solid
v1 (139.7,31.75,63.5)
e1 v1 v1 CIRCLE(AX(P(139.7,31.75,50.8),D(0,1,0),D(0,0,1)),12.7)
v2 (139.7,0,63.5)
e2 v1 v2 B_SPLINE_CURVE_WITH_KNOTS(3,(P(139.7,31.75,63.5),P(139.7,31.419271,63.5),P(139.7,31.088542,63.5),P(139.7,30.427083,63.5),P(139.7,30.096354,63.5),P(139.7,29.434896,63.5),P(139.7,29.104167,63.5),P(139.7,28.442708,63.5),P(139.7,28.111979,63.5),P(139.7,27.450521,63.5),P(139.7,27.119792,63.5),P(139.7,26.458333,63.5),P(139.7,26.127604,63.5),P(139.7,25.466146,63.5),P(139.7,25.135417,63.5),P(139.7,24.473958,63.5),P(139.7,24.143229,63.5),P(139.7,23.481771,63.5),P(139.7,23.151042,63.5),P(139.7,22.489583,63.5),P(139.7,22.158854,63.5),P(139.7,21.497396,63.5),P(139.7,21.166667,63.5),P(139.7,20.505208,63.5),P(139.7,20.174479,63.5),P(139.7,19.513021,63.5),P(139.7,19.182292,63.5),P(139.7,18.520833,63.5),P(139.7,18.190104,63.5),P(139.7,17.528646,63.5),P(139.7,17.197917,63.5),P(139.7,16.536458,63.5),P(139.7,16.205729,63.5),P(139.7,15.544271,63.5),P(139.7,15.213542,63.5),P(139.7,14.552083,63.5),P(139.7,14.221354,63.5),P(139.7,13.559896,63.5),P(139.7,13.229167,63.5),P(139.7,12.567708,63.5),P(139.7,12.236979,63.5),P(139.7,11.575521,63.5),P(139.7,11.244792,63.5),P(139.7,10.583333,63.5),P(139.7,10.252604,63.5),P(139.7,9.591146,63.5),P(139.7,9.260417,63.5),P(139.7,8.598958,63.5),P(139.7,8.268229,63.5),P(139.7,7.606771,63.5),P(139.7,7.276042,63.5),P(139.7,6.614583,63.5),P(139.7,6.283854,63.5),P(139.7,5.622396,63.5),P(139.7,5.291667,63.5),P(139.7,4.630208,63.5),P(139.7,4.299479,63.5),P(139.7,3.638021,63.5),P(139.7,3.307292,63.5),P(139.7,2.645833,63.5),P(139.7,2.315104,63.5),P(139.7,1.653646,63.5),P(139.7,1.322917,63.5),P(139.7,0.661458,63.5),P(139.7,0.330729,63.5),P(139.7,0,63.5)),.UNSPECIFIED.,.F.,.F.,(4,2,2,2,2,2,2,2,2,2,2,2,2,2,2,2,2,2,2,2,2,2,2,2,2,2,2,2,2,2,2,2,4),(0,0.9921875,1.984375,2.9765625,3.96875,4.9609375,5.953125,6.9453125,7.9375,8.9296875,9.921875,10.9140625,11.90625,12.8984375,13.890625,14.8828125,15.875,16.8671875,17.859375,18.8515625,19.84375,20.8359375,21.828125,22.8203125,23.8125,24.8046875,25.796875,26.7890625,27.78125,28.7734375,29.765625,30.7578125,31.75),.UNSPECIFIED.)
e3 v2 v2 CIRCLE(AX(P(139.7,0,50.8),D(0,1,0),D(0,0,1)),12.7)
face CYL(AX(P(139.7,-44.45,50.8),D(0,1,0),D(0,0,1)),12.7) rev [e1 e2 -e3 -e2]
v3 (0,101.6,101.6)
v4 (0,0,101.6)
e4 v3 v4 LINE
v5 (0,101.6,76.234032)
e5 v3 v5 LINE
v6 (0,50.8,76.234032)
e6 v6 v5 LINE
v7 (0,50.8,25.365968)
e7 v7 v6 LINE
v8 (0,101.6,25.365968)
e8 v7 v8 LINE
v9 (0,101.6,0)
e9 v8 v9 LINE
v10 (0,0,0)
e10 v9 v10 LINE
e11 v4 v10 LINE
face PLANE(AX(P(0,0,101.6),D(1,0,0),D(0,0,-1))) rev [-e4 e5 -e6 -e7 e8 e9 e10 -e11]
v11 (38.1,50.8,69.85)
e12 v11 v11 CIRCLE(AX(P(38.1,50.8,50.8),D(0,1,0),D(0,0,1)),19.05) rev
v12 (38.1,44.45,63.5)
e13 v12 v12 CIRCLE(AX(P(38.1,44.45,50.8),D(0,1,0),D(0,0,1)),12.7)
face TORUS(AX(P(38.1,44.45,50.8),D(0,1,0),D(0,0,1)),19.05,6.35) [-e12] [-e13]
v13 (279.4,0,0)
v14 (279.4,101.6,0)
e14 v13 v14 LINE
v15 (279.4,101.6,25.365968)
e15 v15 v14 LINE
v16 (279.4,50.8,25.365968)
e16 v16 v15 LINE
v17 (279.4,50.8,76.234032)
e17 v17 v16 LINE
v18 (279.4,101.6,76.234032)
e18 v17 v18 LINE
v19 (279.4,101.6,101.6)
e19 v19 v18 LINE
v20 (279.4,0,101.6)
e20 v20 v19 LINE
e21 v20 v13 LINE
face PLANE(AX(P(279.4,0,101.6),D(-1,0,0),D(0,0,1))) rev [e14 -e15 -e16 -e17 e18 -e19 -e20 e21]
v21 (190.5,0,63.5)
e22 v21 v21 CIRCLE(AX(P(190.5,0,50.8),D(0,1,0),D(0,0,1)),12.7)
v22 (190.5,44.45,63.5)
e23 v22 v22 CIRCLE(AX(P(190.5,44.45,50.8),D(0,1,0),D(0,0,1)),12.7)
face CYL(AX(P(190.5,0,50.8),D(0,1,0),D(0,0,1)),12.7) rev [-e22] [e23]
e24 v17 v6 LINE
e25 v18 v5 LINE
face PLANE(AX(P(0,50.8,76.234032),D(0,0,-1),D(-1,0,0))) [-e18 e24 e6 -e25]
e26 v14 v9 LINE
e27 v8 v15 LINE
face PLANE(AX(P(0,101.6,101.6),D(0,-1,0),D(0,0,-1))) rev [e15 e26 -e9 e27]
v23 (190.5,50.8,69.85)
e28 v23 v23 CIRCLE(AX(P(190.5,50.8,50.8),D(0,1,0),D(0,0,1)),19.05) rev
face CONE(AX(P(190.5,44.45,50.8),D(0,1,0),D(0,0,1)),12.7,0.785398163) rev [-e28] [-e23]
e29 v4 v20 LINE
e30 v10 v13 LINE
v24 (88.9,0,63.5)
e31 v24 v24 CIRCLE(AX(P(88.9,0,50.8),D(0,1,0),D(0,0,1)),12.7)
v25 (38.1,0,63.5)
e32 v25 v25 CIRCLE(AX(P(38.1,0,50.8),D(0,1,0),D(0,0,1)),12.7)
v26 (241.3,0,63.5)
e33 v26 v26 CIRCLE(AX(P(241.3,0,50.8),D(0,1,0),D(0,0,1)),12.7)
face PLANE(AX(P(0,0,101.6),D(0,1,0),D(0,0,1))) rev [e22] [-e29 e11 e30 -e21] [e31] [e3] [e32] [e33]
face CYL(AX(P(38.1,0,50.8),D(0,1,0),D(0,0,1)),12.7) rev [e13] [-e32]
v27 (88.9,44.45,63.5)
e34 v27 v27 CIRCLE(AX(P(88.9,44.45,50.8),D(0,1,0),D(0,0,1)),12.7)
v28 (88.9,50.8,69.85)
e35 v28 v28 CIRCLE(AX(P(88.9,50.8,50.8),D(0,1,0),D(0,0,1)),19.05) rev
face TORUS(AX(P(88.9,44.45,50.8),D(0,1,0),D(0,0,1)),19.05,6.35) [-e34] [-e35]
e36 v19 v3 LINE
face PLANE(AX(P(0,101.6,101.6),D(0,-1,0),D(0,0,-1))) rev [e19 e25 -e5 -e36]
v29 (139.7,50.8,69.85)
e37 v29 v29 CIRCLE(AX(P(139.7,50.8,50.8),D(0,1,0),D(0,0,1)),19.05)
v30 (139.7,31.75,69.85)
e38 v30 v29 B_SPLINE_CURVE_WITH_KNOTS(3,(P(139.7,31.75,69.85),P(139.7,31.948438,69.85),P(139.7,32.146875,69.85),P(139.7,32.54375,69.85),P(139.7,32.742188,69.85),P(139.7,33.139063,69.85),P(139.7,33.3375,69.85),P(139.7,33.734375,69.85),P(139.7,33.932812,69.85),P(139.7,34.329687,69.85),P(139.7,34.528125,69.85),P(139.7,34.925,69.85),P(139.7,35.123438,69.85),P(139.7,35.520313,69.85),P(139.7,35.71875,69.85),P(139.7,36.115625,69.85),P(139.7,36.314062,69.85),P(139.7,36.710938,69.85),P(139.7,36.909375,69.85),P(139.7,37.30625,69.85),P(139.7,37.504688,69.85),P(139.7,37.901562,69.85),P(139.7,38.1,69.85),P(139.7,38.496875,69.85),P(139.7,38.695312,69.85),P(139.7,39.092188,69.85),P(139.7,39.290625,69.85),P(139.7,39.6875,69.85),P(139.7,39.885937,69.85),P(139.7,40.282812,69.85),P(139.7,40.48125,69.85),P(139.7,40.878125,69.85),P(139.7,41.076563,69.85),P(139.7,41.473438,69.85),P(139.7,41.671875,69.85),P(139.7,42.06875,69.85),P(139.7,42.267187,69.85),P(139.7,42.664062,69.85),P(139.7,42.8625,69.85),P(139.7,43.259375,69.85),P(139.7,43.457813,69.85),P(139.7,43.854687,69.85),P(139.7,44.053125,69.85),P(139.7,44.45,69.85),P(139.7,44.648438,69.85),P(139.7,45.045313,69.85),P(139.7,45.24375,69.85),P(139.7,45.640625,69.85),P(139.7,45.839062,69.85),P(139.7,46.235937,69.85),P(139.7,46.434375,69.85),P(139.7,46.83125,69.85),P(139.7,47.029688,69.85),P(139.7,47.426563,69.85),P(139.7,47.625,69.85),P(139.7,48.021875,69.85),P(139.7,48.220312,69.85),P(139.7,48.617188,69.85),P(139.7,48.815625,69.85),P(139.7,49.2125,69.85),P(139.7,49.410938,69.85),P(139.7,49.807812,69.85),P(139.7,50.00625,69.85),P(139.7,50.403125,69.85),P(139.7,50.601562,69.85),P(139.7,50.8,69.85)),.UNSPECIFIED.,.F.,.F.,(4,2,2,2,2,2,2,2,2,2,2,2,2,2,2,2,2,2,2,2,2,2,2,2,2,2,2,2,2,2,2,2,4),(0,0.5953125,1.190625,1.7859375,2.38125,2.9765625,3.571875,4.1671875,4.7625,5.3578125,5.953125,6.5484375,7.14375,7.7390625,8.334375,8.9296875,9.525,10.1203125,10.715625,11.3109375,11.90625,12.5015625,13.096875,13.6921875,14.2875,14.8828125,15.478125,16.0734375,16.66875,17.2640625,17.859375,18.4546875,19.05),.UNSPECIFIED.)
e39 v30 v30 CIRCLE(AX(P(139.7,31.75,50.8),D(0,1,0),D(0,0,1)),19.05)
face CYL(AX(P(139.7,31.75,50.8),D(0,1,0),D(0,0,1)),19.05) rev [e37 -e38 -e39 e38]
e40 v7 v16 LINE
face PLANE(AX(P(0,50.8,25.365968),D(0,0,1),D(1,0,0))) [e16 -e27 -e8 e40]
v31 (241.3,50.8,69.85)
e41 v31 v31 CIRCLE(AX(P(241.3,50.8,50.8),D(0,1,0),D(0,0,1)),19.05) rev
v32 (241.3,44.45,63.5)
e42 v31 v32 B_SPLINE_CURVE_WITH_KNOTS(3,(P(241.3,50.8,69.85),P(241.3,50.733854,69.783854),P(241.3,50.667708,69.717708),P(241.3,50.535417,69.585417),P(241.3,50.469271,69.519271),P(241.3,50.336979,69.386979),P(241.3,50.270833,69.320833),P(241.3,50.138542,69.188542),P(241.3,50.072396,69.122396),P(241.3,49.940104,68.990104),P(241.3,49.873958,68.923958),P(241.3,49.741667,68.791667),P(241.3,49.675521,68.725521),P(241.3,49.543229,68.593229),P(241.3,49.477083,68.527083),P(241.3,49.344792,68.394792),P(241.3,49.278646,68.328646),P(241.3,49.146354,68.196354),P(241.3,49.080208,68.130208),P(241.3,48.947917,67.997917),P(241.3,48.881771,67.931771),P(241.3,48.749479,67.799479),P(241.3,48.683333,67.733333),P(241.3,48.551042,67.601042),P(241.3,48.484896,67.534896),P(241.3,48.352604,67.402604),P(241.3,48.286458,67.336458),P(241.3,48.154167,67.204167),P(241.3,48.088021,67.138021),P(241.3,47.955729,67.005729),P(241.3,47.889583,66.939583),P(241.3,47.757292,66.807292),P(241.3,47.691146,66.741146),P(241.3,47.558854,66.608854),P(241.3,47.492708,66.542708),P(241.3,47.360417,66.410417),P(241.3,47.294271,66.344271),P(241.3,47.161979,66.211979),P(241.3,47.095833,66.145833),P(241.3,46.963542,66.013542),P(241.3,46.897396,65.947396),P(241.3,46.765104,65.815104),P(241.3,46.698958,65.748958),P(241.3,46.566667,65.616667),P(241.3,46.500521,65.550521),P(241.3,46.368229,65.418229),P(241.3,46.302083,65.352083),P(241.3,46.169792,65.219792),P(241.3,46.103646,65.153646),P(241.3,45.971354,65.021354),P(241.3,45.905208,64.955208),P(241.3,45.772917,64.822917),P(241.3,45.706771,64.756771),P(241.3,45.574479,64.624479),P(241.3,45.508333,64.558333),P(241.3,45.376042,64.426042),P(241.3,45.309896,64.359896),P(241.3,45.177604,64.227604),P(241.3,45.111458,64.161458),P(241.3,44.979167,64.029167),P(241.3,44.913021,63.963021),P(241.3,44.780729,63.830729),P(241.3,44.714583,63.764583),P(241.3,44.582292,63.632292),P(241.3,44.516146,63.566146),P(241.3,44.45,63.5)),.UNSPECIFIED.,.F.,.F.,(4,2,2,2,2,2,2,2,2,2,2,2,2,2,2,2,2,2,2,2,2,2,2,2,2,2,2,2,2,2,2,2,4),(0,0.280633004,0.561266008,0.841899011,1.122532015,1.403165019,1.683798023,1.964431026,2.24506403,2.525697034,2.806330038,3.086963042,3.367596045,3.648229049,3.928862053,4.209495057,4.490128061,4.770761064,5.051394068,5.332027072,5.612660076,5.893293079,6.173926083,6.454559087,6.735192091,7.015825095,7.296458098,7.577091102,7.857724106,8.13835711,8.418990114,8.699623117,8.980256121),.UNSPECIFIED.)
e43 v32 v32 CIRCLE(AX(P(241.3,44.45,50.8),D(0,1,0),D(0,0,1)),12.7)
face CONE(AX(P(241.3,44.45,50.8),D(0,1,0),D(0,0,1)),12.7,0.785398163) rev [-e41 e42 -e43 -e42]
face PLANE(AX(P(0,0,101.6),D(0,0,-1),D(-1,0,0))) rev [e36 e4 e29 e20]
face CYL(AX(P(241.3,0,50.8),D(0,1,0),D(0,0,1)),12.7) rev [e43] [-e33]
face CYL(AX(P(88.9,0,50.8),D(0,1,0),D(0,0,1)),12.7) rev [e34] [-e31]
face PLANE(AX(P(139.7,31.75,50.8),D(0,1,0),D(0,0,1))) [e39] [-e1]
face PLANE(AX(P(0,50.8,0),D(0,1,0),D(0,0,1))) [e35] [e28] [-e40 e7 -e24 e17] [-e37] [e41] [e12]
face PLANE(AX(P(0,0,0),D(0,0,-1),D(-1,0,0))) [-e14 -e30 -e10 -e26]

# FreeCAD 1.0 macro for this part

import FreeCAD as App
import Part
import Sketcher
Q = App.Units.Quantity


def edges_at(feature, points):
    """Names of the edges that pass closest to the given points."""
    edges = feature.Shape.Edges
    near = lambda p: min(range(len(edges)), key=lambda i: edges[i].distToShape(Part.Vertex(*p))[0])
    return sorted({f"Edge{near(p) + 1}" for p in points})


def add_polygon(sketch, points):
    """Adds a closed chain of lines whose ends are joined by coincident constraints."""
    first, n = sketch.GeometryCount, len(points)
    for a, b in zip(points, points[1:] + points[:1]):
        sketch.addGeometry(Part.LineSegment(App.Vector(*a, 0), App.Vector(*b, 0)), False)
    for i in range(n):
        sketch.addConstraint(Sketcher.Constraint("Coincident", first + i, 2, first + (i + 1) % n, 1))

doc = App.newDocument("Part")
params = doc.addObject("Spreadsheet::Sheet", "Params")
for row, (alias, value) in enumerate([
    ("sketch1_width", "11 in"),
    ("sketch1_height", "4 in"),
    ("pad1_length", "4 in"),
    ("sketch2_width", "11 in"),
    ("pocket1_length", "2 in"),
    ("sketch3_diameter", "1 in"),
    ("pocket2_length", "2 in"),
    ("sketch4_diameter", "1.5 in"),
    ("pocket3_length", "0.75 in"),
    ("sketch5_diameter", "1 in"),
    ("pocket4_length", "3 in"),
    ("fillet_radius", "0.25 in"),
    ("chamfer_size", "0.25 in"),
], start=1):
    params.set(f"A{row}", alias)
    params.set(f"B{row}", "=" + value)
    params.setAlias(f"B{row}", alias)

body = doc.addObject("PartDesign::Body", "Body")

# Sketch on XY plane
sketch1 = body.newObject("Sketcher::SketchObject", "Sketch")
sketch1.AttachmentSupport = (doc.getObject("XY_Plane"), [""])
sketch1.MapMode = "FlatFace"
add_polygon(sketch1, [(0, 102), (0, 0), (279, 0), (279, 102)])  # lines 0-3
sketch1.addConstraint([
    Sketcher.Constraint("Vertical", 0),
    Sketcher.Constraint("Horizontal", 1),
    Sketcher.Constraint("Vertical", 2),
    Sketcher.Constraint("Horizontal", 3),
    Sketcher.Constraint("Coincident", 0, 2, -1, 1),
    Sketcher.Constraint("DistanceX", 1, 1, 1, 2, Q("11 in")),
    Sketcher.Constraint("DistanceY", 0, 2, 0, 1, Q("4 in")),
])
sketch1.setExpression("Constraints[9]", "Params.sketch1_width")
sketch1.setExpression("Constraints[10]", "Params.sketch1_height")
pad1 = body.newObject("PartDesign::Pad", "Pad")
pad1.Profile = sketch1
pad1.setExpression("Length", "Params.pad1_length")

# Sketch on XZ plane
sketch2 = body.newObject("Sketcher::SketchObject", "Sketch001")
sketch2.AttachmentSupport = (doc.getObject("XZ_Plane"), [""])
sketch2.MapMode = "FlatFace"
sketch2.AttachmentOffset = App.Placement(App.Vector(0, 0, -4 * 25.4), App.Rotation())
add_polygon(sketch2, [(0, 25), (0, 76), (279, 76), (279, 25)])  # lines 0-3
sketch2.addConstraint([
    Sketcher.Constraint("Vertical", 0),
    Sketcher.Constraint("Horizontal", 1),
    Sketcher.Constraint("Vertical", 2),
    Sketcher.Constraint("Horizontal", 3),
    Sketcher.Constraint("PointOnObject", 0, 2, -2),
    Sketcher.Constraint("DistanceX", 1, 1, 1, 2, Q("11 in")),
    Sketcher.Constraint("DistanceY", 0, 1, 0, 2, 50.868063),
    Sketcher.Constraint("DistanceY", -1, 1, 0, 2, 76.234032),
])
sketch2.setExpression("Constraints[9]", "Params.sketch2_width")
pocket1 = body.newObject("PartDesign::Pocket", "Pocket")
pocket1.Profile = sketch2
pocket1.setExpression("Length", "Params.pocket1_length")
pocket1.Reversed = True

# Sketch on XZ plane
sketch3 = body.newObject("Sketcher::SketchObject", "Sketch002")
sketch3.AttachmentSupport = (doc.getObject("XZ_Plane"), [""])
sketch3.MapMode = "FlatFace"
sketch3.AttachmentOffset = App.Placement(App.Vector(0, 0, -2 * 25.4), App.Rotation())
sketch3.addGeometry([
    Part.Circle(App.Vector(38, 51, 0), App.Vector(0, 0, 1), 13),
    Part.Circle(App.Vector(89, 51, 0), App.Vector(0, 0, 1), 13),
    Part.Circle(App.Vector(190, 51, 0), App.Vector(0, 0, 1), 13),
    Part.Circle(App.Vector(241, 51, 0), App.Vector(0, 0, 1), 13),
], False)
sketch3.addConstraint([
    Sketcher.Constraint("Equal", 0, 1),
    Sketcher.Constraint("Equal", 1, 2),
    Sketcher.Constraint("Equal", 2, 3),
    Sketcher.Constraint("Horizontal", 0, 3, 1, 3),
    Sketcher.Constraint("Horizontal", 1, 3, 2, 3),
    Sketcher.Constraint("Horizontal", 2, 3, 3, 3),
    Sketcher.Constraint("Diameter", 0, Q("1 in")),
    Sketcher.Constraint("DistanceY", -1, 1, 0, 3, Q("2 in")),
    Sketcher.Constraint("DistanceX", 0, 3, 1, 3, Q("2 in")),
    Sketcher.Constraint("DistanceX", 1, 3, 2, 3, Q("4 in")),
    Sketcher.Constraint("DistanceX", 2, 3, 3, 3, Q("2 in")),
    Sketcher.Constraint("DistanceX", -1, 1, 0, 3, Q("1.5 in")),
])
sketch3.setExpression("Constraints[6]", "Params.sketch3_diameter")
pocket2 = body.newObject("PartDesign::Pocket", "Pocket001")
pocket2.Profile = sketch3
pocket2.setExpression("Length", "Params.pocket2_length")
pocket2.Reversed = True

# Sketch on XZ plane
sketch4 = body.newObject("Sketcher::SketchObject", "Sketch003")
sketch4.AttachmentSupport = (doc.getObject("XZ_Plane"), [""])
sketch4.MapMode = "FlatFace"
sketch4.AttachmentOffset = App.Placement(App.Vector(0, 0, -2 * 25.4), App.Rotation())
sketch4.addGeometry(Part.Circle(App.Vector(140, 51, 0), App.Vector(0, 0, 1), 19), False)
sketch4.addConstraint([
    Sketcher.Constraint("Diameter", 0, Q("1.5 in")),
    Sketcher.Constraint("DistanceY", -1, 1, 0, 3, Q("2 in")),
    Sketcher.Constraint("DistanceX", -1, 1, 0, 3, Q("5.5 in")),
])
sketch4.setExpression("Constraints[0]", "Params.sketch4_diameter")
pocket3 = body.newObject("PartDesign::Pocket", "Pocket002")
pocket3.Profile = sketch4
pocket3.setExpression("Length", "Params.pocket3_length")
pocket3.Reversed = True

# Sketch on XZ plane
sketch5 = body.newObject("Sketcher::SketchObject", "Sketch004")
sketch5.AttachmentSupport = (doc.getObject("XZ_Plane"), [""])
sketch5.MapMode = "FlatFace"
sketch5.AttachmentOffset = App.Placement(App.Vector(0, 0, -1.25 * 25.4), App.Rotation())
sketch5.addGeometry(Part.Circle(App.Vector(140, 51, 0), App.Vector(0, 0, 1), 13), False)
sketch5.addConstraint([
    Sketcher.Constraint("Diameter", 0, Q("1 in")),
    Sketcher.Constraint("DistanceY", -1, 1, 0, 3, Q("2 in")),
    Sketcher.Constraint("DistanceX", -1, 1, 0, 3, Q("5.5 in")),
])
sketch5.setExpression("Constraints[0]", "Params.sketch5_diameter")
pocket4 = body.newObject("PartDesign::Pocket", "Pocket003")
pocket4.Profile = sketch5
pocket4.setExpression("Length", "Params.pocket4_length")
pocket4.Reversed = True
doc.recompute()

fillet = body.newObject("PartDesign::Fillet", "Fillet")
fillet.Base = (pocket4, edges_at(pocket4, [(38.1, 50.8, 38.1), (88.9, 50.8, 38.1)]))
fillet.setExpression("Radius", "Params.fillet_radius")
doc.recompute()

chamfer = body.newObject("PartDesign::Chamfer", "Chamfer")
chamfer.Base = (fillet, edges_at(fillet, [(190.5, 50.8, 38.1), (241.3, 50.8, 38.1)]))
chamfer.setExpression("Size", "Params.chamfer_size")

doc.recompute()
